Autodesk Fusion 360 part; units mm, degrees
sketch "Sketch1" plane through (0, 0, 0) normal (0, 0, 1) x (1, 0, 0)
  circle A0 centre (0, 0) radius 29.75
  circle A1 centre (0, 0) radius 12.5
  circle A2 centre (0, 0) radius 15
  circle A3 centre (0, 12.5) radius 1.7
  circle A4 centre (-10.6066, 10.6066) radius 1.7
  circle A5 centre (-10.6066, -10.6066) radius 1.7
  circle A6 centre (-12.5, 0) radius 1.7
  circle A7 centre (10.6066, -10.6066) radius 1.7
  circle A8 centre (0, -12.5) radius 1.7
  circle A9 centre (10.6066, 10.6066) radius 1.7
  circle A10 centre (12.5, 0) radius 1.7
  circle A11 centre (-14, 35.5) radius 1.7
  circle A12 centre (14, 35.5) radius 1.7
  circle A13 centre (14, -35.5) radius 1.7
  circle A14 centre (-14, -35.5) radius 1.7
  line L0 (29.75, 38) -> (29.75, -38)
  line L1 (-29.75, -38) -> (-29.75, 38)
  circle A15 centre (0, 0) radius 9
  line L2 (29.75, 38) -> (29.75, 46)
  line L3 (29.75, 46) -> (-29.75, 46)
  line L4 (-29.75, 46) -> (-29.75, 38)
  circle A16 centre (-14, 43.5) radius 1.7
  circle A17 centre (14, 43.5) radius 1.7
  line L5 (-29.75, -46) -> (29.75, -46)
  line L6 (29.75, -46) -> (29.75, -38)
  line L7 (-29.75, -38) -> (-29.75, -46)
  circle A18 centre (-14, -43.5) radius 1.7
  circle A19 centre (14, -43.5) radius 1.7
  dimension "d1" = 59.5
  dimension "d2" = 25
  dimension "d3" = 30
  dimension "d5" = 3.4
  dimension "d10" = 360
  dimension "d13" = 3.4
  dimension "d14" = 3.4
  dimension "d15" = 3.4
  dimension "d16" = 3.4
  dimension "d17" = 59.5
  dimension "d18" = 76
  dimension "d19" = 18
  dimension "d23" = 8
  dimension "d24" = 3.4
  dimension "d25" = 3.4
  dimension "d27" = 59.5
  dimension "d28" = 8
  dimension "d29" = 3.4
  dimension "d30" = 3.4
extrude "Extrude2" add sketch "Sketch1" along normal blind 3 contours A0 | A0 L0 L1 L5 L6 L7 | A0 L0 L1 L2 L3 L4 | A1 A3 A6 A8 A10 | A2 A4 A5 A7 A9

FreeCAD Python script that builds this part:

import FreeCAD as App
import Part
import Sketcher

V = App.Vector

doc = App.newDocument("Part")
body = doc.addObject("PartDesign::Body", "Body")

sketch1 = body.newObject("Sketcher::SketchObject", "Sketch")
sketch1.AttachmentSupport = (doc.getObject("XY_Plane"), [""])
sketch1.MapMode = "FlatFace"
sketch1.addGeometry([
    Part.LineSegment(V(29.75, 46, 0), V(-29.75, 46, 0)),
    Part.LineSegment(V(-29.75, 46, 0), V(-29.75, -46, 0)),
    Part.LineSegment(V(-29.75, -46, 0), V(29.75, -46, 0)),
    Part.LineSegment(V(29.75, -46, 0), V(29.75, 46, 0)),
    Part.Circle(V(10.6066, 10.6066, 0), V(0, 0, 1), 1.7),
    Part.Circle(V(-10.6066, 10.6066, 0), V(0, 0, 1), 1.7),
    Part.Circle(V(-10.6066, -10.6066, 0), V(0, 0, 1), 1.7),
    Part.Circle(V(10.6066, -10.6066, 0), V(0, 0, 1), 1.7),
    Part.Circle(V(14, -35.5, 0), V(0, 0, 1), 1.7),
    Part.Circle(V(-14, -43.5, 0), V(0, 0, 1), 1.7),
    Part.Circle(V(-14, -35.5, 0), V(0, 0, 1), 1.7),
    Part.Circle(V(14, -43.5, 0), V(0, 0, 1), 1.7),
    Part.Circle(V(14, 43.5, 0), V(0, 0, 1), 1.7),
    Part.Circle(V(-14, 35.5, 0), V(0, 0, 1), 1.7),
    Part.Circle(V(-14, 43.5, 0), V(0, 0, 1), 1.7),
    Part.Circle(V(14, 35.5, 0), V(0, 0, 1), 1.7),
    Part.Circle(V(0, -12.5, 0), V(0, 0, 1), 1.7),
    Part.Circle(V(12.5, 0, 0), V(0, 0, 1), 1.7),
    Part.Circle(V(0, 12.5, 0), V(0, 0, 1), 1.7),
    Part.Circle(V(-12.5, 0, 0), V(0, 0, 1), 1.7),
    Part.Circle(V(0, 0, 0), V(0, 0, 1), 9),
], False)
sketch1.addConstraint([
    Sketcher.Constraint("Coincident", 0, 2, 1, 1),
    Sketcher.Constraint("Coincident", 1, 2, 2, 1),
    Sketcher.Constraint("Coincident", 2, 2, 3, 1),
    Sketcher.Constraint("Coincident", 3, 2, 0, 1),
    Sketcher.Constraint("Horizontal", 0),
    Sketcher.Constraint("Vertical", 1),
    Sketcher.Constraint("Horizontal", 2),
    Sketcher.Constraint("Vertical", 3),
    Sketcher.Constraint("Coincident", 20, 3, -1, 1),
    Sketcher.Constraint("Equal", 4, 5),
    Sketcher.Constraint("Equal", 5, 6),
    Sketcher.Constraint("Equal", 6, 7),
    Sketcher.Constraint("Equal", 7, 8),
    Sketcher.Constraint("Equal", 8, 9),
    Sketcher.Constraint("Equal", 9, 10),
    Sketcher.Constraint("Equal", 10, 11),
    Sketcher.Constraint("Equal", 11, 12),
    Sketcher.Constraint("Equal", 12, 13),
    Sketcher.Constraint("Equal", 13, 14),
    Sketcher.Constraint("Equal", 14, 15),
    Sketcher.Constraint("Equal", 15, 16),
    Sketcher.Constraint("Equal", 16, 17),
    Sketcher.Constraint("Equal", 17, 18),
    Sketcher.Constraint("Equal", 18, 19),
    Sketcher.Constraint("Symmetric", 4, 3, 6, 3, -1, 1),
    Sketcher.Constraint("Symmetric", 5, 3, 7, 3, -1, 1),
    Sketcher.Constraint("Symmetric", 9, 3, 12, 3, -1, 1),
    Sketcher.Constraint("Symmetric", 8, 3, 13, 3, -1, 1),
    Sketcher.Constraint("Symmetric", 11, 3, 14, 3, -1, 1),
    Sketcher.Constraint("Symmetric", 10, 3, 15, 3, -1, 1),
    Sketcher.Constraint("Symmetric", 16, 3, 18, 3, -1, 1),
    Sketcher.Constraint("Symmetric", 17, 3, 19, 3, -1, 1),
    Sketcher.Constraint("Symmetric", 0, 2, 2, 2, -1, 1),
    Sketcher.Constraint("Symmetric", 4, 3, 5, 3, -2),
    Sketcher.Constraint("Symmetric", 8, 3, 10, 3, -2),
    Sketcher.Constraint("Symmetric", 9, 3, 11, 3, -2),
    Sketcher.Constraint("PointOnObject", 16, 3, -2),
    Sketcher.Constraint("PointOnObject", 17, 3, -1),
    Sketcher.Constraint("Vertical", 9, 3, 10, 3),
    Sketcher.Constraint("Diameter", 20, 18.0),
    Sketcher.Constraint("Diameter", 4, 3.4),
    Sketcher.Constraint("DistanceX", 0, 2, 0, 1, 59.5),
    Sketcher.Constraint("DistanceY", 9, 3, 8, 3, 8.0),
    Sketcher.Constraint("DistanceY", 16, 3, 18, 3, 25.0),
    Sketcher.Constraint("DistanceX", 19, 3, 17, 3, 25.0),
    Sketcher.Constraint("DistanceY", 1, 2, 1, 1, 92.0),
    Sketcher.Constraint("DistanceX", -1, 1, 8, 3, 14.0),
    Sketcher.Constraint("DistanceY", 8, 3, 12, 3, 79.0),
    Sketcher.Constraint("DistanceX", -1, 1, 4, 3, 10.6066),
    Sketcher.Constraint("DistanceY", -1, 1, 4, 3, 10.6066),
])
pad1 = body.newObject("PartDesign::Pad", "Pad")
pad1.Profile = sketch1
pad1.Length = 3

doc.recompute()
